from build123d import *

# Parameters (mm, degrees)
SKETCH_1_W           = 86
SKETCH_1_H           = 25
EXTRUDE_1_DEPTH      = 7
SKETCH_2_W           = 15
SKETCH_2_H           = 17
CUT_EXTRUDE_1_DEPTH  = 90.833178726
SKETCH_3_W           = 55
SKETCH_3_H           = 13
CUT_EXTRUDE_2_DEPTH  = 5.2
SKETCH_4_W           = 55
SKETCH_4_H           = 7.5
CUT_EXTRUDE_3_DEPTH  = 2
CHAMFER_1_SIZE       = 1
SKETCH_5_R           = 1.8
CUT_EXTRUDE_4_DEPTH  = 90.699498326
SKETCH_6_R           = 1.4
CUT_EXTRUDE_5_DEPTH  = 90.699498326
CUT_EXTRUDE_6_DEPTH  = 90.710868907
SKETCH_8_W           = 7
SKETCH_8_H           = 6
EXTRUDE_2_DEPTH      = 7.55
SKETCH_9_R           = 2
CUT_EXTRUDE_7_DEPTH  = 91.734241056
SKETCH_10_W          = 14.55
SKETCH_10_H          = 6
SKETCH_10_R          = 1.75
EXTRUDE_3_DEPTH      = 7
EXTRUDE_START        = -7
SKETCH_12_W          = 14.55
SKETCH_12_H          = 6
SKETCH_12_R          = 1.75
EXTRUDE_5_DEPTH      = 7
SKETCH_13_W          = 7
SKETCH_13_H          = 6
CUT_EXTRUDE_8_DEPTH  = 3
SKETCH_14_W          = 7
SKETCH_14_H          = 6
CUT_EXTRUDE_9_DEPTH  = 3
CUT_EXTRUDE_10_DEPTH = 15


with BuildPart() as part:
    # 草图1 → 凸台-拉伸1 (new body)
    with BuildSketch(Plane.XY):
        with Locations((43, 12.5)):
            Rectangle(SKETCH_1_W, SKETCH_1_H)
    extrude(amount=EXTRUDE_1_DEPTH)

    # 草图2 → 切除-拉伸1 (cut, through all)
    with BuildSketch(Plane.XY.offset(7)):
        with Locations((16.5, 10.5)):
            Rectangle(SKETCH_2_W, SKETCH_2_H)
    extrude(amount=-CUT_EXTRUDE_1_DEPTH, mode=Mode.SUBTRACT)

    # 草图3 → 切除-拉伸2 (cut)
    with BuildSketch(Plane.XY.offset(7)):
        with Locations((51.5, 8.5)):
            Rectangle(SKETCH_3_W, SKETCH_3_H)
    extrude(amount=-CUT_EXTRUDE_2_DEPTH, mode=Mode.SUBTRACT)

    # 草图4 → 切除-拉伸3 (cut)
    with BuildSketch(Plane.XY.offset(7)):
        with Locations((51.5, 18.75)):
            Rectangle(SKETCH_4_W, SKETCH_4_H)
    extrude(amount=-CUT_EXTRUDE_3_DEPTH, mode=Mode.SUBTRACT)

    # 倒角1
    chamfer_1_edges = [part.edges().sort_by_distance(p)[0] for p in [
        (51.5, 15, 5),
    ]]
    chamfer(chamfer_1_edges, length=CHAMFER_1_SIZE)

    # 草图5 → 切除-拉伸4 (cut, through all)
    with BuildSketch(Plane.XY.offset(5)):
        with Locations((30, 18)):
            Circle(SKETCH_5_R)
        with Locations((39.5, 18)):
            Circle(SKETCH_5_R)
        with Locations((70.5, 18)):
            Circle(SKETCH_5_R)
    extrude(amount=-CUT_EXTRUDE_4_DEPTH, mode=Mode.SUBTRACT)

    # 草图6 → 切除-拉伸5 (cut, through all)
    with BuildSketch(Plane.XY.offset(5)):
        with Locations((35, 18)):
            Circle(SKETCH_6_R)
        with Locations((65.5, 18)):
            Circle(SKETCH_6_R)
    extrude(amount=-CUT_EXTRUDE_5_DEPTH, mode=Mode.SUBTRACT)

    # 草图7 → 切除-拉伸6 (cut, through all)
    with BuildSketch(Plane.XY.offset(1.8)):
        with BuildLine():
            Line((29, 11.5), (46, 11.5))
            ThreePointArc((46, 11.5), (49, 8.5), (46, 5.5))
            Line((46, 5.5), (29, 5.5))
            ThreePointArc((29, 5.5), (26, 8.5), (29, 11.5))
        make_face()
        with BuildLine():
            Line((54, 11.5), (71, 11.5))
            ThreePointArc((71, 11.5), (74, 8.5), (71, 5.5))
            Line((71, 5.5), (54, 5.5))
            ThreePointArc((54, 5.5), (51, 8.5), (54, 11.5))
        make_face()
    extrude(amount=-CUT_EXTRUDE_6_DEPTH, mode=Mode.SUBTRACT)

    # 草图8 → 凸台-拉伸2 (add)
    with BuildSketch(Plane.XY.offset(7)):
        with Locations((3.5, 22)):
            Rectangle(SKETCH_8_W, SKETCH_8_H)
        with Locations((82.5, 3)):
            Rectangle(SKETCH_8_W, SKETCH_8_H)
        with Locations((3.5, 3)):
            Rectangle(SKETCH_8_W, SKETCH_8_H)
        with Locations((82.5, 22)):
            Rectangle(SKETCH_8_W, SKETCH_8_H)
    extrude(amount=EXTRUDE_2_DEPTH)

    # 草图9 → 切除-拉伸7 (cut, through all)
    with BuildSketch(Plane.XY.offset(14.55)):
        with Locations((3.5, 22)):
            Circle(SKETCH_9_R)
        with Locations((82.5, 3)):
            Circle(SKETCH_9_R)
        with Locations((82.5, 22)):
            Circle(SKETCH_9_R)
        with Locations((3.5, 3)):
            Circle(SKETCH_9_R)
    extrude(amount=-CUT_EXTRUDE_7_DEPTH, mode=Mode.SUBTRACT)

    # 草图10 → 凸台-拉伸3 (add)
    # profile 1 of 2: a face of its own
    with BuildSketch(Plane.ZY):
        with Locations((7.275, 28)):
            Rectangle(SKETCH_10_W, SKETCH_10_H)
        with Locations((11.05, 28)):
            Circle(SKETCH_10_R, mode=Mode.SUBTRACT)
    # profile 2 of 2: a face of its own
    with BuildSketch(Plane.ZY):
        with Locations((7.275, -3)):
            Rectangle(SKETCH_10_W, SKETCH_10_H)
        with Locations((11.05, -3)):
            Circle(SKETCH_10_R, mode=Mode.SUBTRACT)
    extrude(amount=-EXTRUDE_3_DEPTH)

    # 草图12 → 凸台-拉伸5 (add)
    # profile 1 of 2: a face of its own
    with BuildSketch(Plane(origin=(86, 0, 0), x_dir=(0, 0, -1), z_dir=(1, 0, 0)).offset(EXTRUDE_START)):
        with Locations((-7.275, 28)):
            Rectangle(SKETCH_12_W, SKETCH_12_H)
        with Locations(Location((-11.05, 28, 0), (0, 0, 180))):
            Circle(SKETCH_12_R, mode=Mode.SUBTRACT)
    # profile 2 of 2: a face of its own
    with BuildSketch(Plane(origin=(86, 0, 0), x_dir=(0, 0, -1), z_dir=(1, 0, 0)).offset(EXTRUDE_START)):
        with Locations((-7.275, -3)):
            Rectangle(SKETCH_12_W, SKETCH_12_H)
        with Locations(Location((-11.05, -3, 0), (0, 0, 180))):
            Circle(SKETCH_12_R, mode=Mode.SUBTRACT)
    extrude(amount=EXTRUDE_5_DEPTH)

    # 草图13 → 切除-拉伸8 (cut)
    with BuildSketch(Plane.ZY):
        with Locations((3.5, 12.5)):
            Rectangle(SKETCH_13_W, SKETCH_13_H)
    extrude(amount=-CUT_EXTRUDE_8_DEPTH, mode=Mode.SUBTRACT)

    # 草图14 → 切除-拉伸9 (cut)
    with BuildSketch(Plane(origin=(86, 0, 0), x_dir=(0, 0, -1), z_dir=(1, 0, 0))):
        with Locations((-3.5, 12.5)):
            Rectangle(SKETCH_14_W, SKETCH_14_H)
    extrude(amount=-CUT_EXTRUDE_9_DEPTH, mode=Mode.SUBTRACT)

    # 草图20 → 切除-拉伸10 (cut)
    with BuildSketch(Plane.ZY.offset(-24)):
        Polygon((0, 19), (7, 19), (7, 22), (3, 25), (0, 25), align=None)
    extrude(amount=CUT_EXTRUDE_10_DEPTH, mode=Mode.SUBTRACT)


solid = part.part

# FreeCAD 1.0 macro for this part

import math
import FreeCAD as App
import Part
import Sketcher

V = App.Vector
Q = App.Units.Quantity


def edges_at(feature, points):
    """Names of the edges that pass closest to the given points."""
    edges = feature.Shape.Edges
    near = lambda p: min(range(len(edges)), key=lambda i: edges[i].distToShape(Part.Vertex(*p))[0])
    return sorted({f"Edge{near(p) + 1}" for p in points})


def add_polygon(sketch, points):
    """Adds a closed chain of lines whose ends are joined by coincident constraints."""
    first, n = sketch.GeometryCount, len(points)
    for a, b in zip(points, points[1:] + points[:1]):
        sketch.addGeometry(Part.LineSegment(App.Vector(*a, 0), App.Vector(*b, 0)), False)
    for i in range(n):
        sketch.addConstraint(Sketcher.Constraint("Coincident", first + i, 2, first + (i + 1) % n, 1))

doc = App.newDocument("Part")
body = doc.addObject("PartDesign::Body", "Body")

sketch1 = body.newObject("Sketcher::SketchObject", "Sketch")
sketch1.AttachmentSupport = (doc.getObject("XY_Plane"), [""])
sketch1.MapMode = "FlatFace"
add_polygon(sketch1, [(0, 25), (0, 0), (86, 0), (86, 25)])
sketch1.addConstraint([
    Sketcher.Constraint("Vertical", 0),
    Sketcher.Constraint("Horizontal", 1),
    Sketcher.Constraint("Vertical", 2),
    Sketcher.Constraint("Horizontal", 3),
    Sketcher.Constraint("Coincident", 0, 2, -1, 1),
    Sketcher.Constraint("DistanceX", 1, 1, 1, 2, Q("86 mm")),
    Sketcher.Constraint("DistanceY", 0, 2, 0, 1, Q("25 mm")),
])
pad1 = body.newObject("PartDesign::Pad", "Pad")
pad1.Profile = sketch1
pad1.Length = 7

sketch2 = body.newObject("Sketcher::SketchObject", "Sketch001")
sketch2.AttachmentSupport = (doc.getObject("XY_Plane"), [""])
sketch2.MapMode = "FlatFace"
sketch2.AttachmentOffset = App.Placement(V(0, 0, 7), App.Rotation())
add_polygon(sketch2, [(9, 19), (9, 2), (24, 2), (24, 19)])
sketch2.addConstraint([
    Sketcher.Constraint("Vertical", 0),
    Sketcher.Constraint("Horizontal", 1),
    Sketcher.Constraint("Vertical", 2),
    Sketcher.Constraint("Horizontal", 3),
    Sketcher.Constraint("DistanceX", 1, 1, 1, 2, Q("15 mm")),
    Sketcher.Constraint("DistanceY", 0, 2, 0, 1, Q("17 mm")),
    Sketcher.Constraint("DistanceX", -1, 1, 0, 2, Q("9 mm")),
    Sketcher.Constraint("DistanceY", -1, 1, 0, 2, Q("2 mm")),
])
pocket1 = body.newObject("PartDesign::Pocket", "Pocket")
pocket1.Profile = sketch2
pocket1.Type = "ThroughAll"

sketch3 = body.newObject("Sketcher::SketchObject", "Sketch002")
sketch3.AttachmentSupport = (doc.getObject("XY_Plane"), [""])
sketch3.MapMode = "FlatFace"
sketch3.AttachmentOffset = App.Placement(V(0, 0, 7), App.Rotation())
add_polygon(sketch3, [(24, 15), (24, 2), (79, 2), (79, 15)])
sketch3.addConstraint([
    Sketcher.Constraint("Vertical", 0),
    Sketcher.Constraint("Horizontal", 1),
    Sketcher.Constraint("Vertical", 2),
    Sketcher.Constraint("Horizontal", 3),
    Sketcher.Constraint("DistanceX", 1, 1, 1, 2, Q("55 mm")),
    Sketcher.Constraint("DistanceY", 0, 2, 0, 1, Q("13 mm")),
    Sketcher.Constraint("DistanceX", -1, 1, 0, 2, Q("24 mm")),
    Sketcher.Constraint("DistanceY", -1, 1, 0, 2, Q("2 mm")),
])
pocket2 = body.newObject("PartDesign::Pocket", "Pocket001")
pocket2.Profile = sketch3
pocket2.Length = 5.2

sketch4 = body.newObject("Sketcher::SketchObject", "Sketch003")
sketch4.AttachmentSupport = (doc.getObject("XY_Plane"), [""])
sketch4.MapMode = "FlatFace"
sketch4.AttachmentOffset = App.Placement(V(0, 0, 7), App.Rotation())
add_polygon(sketch4, [(24, 22), (24, 15), (79, 15), (79, 22)])
sketch4.addConstraint([
    Sketcher.Constraint("Vertical", 0),
    Sketcher.Constraint("Horizontal", 1),
    Sketcher.Constraint("Vertical", 2),
    Sketcher.Constraint("Horizontal", 3),
    Sketcher.Constraint("DistanceX", 1, 1, 1, 2, Q("55 mm")),
    Sketcher.Constraint("DistanceY", 0, 2, 0, 1, Q("7.5 mm")),
    Sketcher.Constraint("DistanceX", -1, 1, 0, 2, Q("24 mm")),
    Sketcher.Constraint("DistanceY", -1, 1, 0, 2, Q("15 mm")),
])
pocket3 = body.newObject("PartDesign::Pocket", "Pocket002")
pocket3.Profile = sketch4
pocket3.Length = 2
doc.recompute()

chamfer = body.newObject("PartDesign::Chamfer", "Chamfer")
chamfer.Base = (pocket3, edges_at(pocket3, [(51.5, 15, 5)]))
chamfer.Size = 1

sketch5 = body.newObject("Sketcher::SketchObject", "Sketch004")
sketch5.AttachmentSupport = (doc.getObject("XY_Plane"), [""])
sketch5.MapMode = "FlatFace"
sketch5.AttachmentOffset = App.Placement(V(0, 0, 5), App.Rotation())
sketch5.addGeometry([
    Part.Circle(V(30, 18, 0), V(0, 0, 1), 1.8),
    Part.Circle(V(39.5, 18, 0), V(0, 0, 1), 1.8),
    Part.Circle(V(70.5, 18, 0), V(0, 0, 1), 1.8),
], False)
sketch5.addConstraint([
    Sketcher.Constraint("Equal", 0, 1),
    Sketcher.Constraint("Equal", 1, 2),
    Sketcher.Constraint("Horizontal", 0, 3, 1, 3),
    Sketcher.Constraint("Horizontal", 1, 3, 2, 3),
    Sketcher.Constraint("Diameter", 0, Q("3.6 mm")),
    Sketcher.Constraint("DistanceX", -1, 1, 0, 3, Q("30 mm")),
    Sketcher.Constraint("DistanceY", -1, 1, 0, 3, Q("18 mm")),
    Sketcher.Constraint("DistanceX", 1, 3, 2, 3, Q("31 mm")),
    Sketcher.Constraint("DistanceX", -1, 1, 1, 3, Q("39.5 mm")),
])
pocket4 = body.newObject("PartDesign::Pocket", "Pocket003")
pocket4.Profile = sketch5
pocket4.Type = "ThroughAll"

sketch6 = body.newObject("Sketcher::SketchObject", "Sketch005")
sketch6.AttachmentSupport = (doc.getObject("XY_Plane"), [""])
sketch6.MapMode = "FlatFace"
sketch6.AttachmentOffset = App.Placement(V(0, 0, 5), App.Rotation())
sketch6.addGeometry([
    Part.Circle(V(35, 18, 0), V(0, 0, 1), 1.4),
    Part.Circle(V(65.5, 18, 0), V(0, 0, 1), 1.4),
], False)
sketch6.addConstraint([
    Sketcher.Constraint("Equal", 0, 1),
    Sketcher.Constraint("Horizontal", 0, 3, 1, 3),
    Sketcher.Constraint("Diameter", 0, Q("2.8 mm")),
    Sketcher.Constraint("DistanceX", -1, 1, 0, 3, Q("35 mm")),
    Sketcher.Constraint("DistanceY", -1, 1, 0, 3, Q("18 mm")),
    Sketcher.Constraint("DistanceX", -1, 1, 1, 3, Q("65.5 mm")),
])
pocket5 = body.newObject("PartDesign::Pocket", "Pocket004")
pocket5.Profile = sketch6
pocket5.Type = "ThroughAll"

sketch7 = body.newObject("Sketcher::SketchObject", "Sketch006")
sketch7.AttachmentSupport = (doc.getObject("XY_Plane"), [""])
sketch7.MapMode = "FlatFace"
sketch7.AttachmentOffset = App.Placement(V(0, 0, 1.8), App.Rotation())
sketch7.addGeometry([
    Part.LineSegment(V(46, 11.5, 0), V(29, 11.5, 0)),
    Part.ArcOfCircle(Part.Circle(V(29, 8.5, 0), V(0, 0, 1), 3), math.radians(90), math.radians(270)),
    Part.LineSegment(V(29, 5.5, 0), V(46, 5.5, 0)),
    Part.ArcOfCircle(Part.Circle(V(46, 8.5, 0), V(0, 0, 1), 3), math.radians(-90), math.radians(90)),
    Part.LineSegment(V(71, 11.5, 0), V(54, 11.5, 0)),
    Part.ArcOfCircle(Part.Circle(V(54, 8.5, 0), V(0, 0, 1), 3), math.radians(90), math.radians(270)),
    Part.LineSegment(V(54, 5.5, 0), V(71, 5.5, 0)),
    Part.ArcOfCircle(Part.Circle(V(71, 8.5, 0), V(0, 0, 1), 3), math.radians(-90), math.radians(90)),
], False)
sketch7.addConstraint([
    Sketcher.Constraint("Tangent", 0, 2, 1, 1),
    Sketcher.Constraint("Tangent", 1, 2, 2, 1),
    Sketcher.Constraint("Tangent", 2, 2, 3, 1),
    Sketcher.Constraint("Tangent", 3, 2, 0, 1),
    Sketcher.Constraint("Tangent", 4, 2, 5, 1),
    Sketcher.Constraint("Tangent", 5, 2, 6, 1),
    Sketcher.Constraint("Tangent", 6, 2, 7, 1),
    Sketcher.Constraint("Tangent", 7, 2, 4, 1),
    Sketcher.Constraint("Horizontal", 0),
    Sketcher.Constraint("Horizontal", 2),
    Sketcher.Constraint("Horizontal", 4),
    Sketcher.Constraint("Horizontal", 6),
    Sketcher.Constraint("Equal", 3, 5),
    Sketcher.Constraint("Horizontal", 3, 3, 5, 3),
    Sketcher.Constraint("Equal", 2, 4),
    Sketcher.Constraint("Radius", 1, Q("3 mm")),
    Sketcher.Constraint("DistanceX", 0, 2, 0, 1, Q("17 mm")),
    Sketcher.Constraint("DistanceX", -1, 1, 1, 3, Q("29 mm")),
    Sketcher.Constraint("DistanceX", -1, 1, 5, 3, Q("54 mm")),
    Sketcher.Constraint("DistanceY", -1, 1, 1, 3, Q("8.5 mm")),
])
pocket6 = body.newObject("PartDesign::Pocket", "Pocket005")
pocket6.Profile = sketch7
pocket6.Type = "ThroughAll"

sketch8 = body.newObject("Sketcher::SketchObject", "Sketch007")
sketch8.AttachmentSupport = (doc.getObject("XY_Plane"), [""])
sketch8.MapMode = "FlatFace"
sketch8.AttachmentOffset = App.Placement(V(0, 0, 7), App.Rotation())
add_polygon(sketch8, [(0, 25), (0, 19), (7, 19), (7, 25)])
add_polygon(sketch8, [(79, 6), (79, 0), (86, 0), (86, 6)])
add_polygon(sketch8, [(0, 6), (0, 0), (7, 0), (7, 6)])
add_polygon(sketch8, [(79, 25), (79, 19), (86, 19), (86, 25)])
sketch8.addConstraint([
    Sketcher.Constraint("Vertical", 0),
    Sketcher.Constraint("Horizontal", 1),
    Sketcher.Constraint("Vertical", 2),
    Sketcher.Constraint("Horizontal", 3),
    Sketcher.Constraint("Vertical", 4),
    Sketcher.Constraint("Horizontal", 5),
    Sketcher.Constraint("Vertical", 6),
    Sketcher.Constraint("Horizontal", 7),
    Sketcher.Constraint("Vertical", 8),
    Sketcher.Constraint("Horizontal", 9),
    Sketcher.Constraint("Vertical", 10),
    Sketcher.Constraint("Horizontal", 11),
    Sketcher.Constraint("Vertical", 12),
    Sketcher.Constraint("Horizontal", 13),
    Sketcher.Constraint("Vertical", 14),
    Sketcher.Constraint("Horizontal", 15),
    Sketcher.Constraint("Coincident", 8, 2, -1, 1),
    Sketcher.Constraint("PointOnObject", 0, 2, -2),
    Sketcher.Constraint("PointOnObject", 4, 2, -1),
    Sketcher.Constraint("Horizontal", 7, 2, 10, 2),
    Sketcher.Constraint("Horizontal", 1, 2, 12, 2),
    Sketcher.Constraint("Horizontal", 3, 2, 14, 2),
    Sketcher.Constraint("Vertical", 2, 2, 9, 2),
    Sketcher.Constraint("Vertical", 7, 2, 12, 2),
    Sketcher.Constraint("Vertical", 6, 2, 13, 2),
    Sketcher.Constraint("Equal", 3, 5),
    Sketcher.Constraint("Equal", 2, 4),
    Sketcher.Constraint("DistanceX", 1, 1, 1, 2, Q("7 mm")),
    Sketcher.Constraint("DistanceY", 0, 2, 0, 1, Q("6 mm")),
    Sketcher.Constraint("DistanceY", -1, 1, 0, 2, Q("19 mm")),
    Sketcher.Constraint("DistanceX", -1, 1, 4, 2, Q("79 mm")),
])
pad2 = body.newObject("PartDesign::Pad", "Pad001")
pad2.Profile = sketch8
pad2.Length = 7.55

sketch9 = body.newObject("Sketcher::SketchObject", "Sketch008")
sketch9.AttachmentSupport = (doc.getObject("XY_Plane"), [""])
sketch9.MapMode = "FlatFace"
sketch9.AttachmentOffset = App.Placement(V(0, 0, 14.55), App.Rotation())
sketch9.addGeometry([
    Part.Circle(V(3.5, 22, 0), V(0, 0, 1), 2),
    Part.Circle(V(82.5, 3, 0), V(0, 0, 1), 2),
    Part.Circle(V(82.5, 22, 0), V(0, 0, 1), 2),
    Part.Circle(V(3.5, 3, 0), V(0, 0, 1), 2),
], False)
sketch9.addConstraint([
    Sketcher.Constraint("Equal", 0, 1),
    Sketcher.Constraint("Equal", 1, 2),
    Sketcher.Constraint("Equal", 2, 3),
    Sketcher.Constraint("Horizontal", 0, 3, 2, 3),
    Sketcher.Constraint("Horizontal", 1, 3, 3, 3),
    Sketcher.Constraint("Vertical", 1, 3, 2, 3),
    Sketcher.Constraint("Vertical", 0, 3, 3, 3),
    Sketcher.Constraint("Diameter", 0, Q("4 mm")),
    Sketcher.Constraint("DistanceY", -1, 1, 0, 3, Q("22 mm")),
    Sketcher.Constraint("DistanceY", -1, 1, 1, 3, Q("3 mm")),
    Sketcher.Constraint("DistanceX", 0, 3, 1, 3, Q("79 mm")),
    Sketcher.Constraint("DistanceX", -1, 1, 0, 3, Q("3.5 mm")),
])
pocket7 = body.newObject("PartDesign::Pocket", "Pocket006")
pocket7.Profile = sketch9
pocket7.Type = "ThroughAll"

sketch10 = body.newObject("Sketcher::SketchObject", "Sketch009")
sketch10.AttachmentSupport = (doc.getObject("YZ_Plane"), [""])
sketch10.MapMode = "FlatFace"
add_polygon(sketch10, [(31, 0), (25, 0), (25, 14.6), (31, 14.6)])
sketch10.addGeometry(Part.Circle(V(28, 11.1, 0), V(0, 0, 1), 1.8), False)
add_polygon(sketch10, [(0, 0), (-6, 0), (-6, 14.6), (0, 14.6)])
sketch10.addGeometry(Part.Circle(V(-3, 11.1, 0), V(0, 0, 1), 1.8), False)
sketch10.addConstraint([
    Sketcher.Constraint("Horizontal", 0),
    Sketcher.Constraint("Vertical", 1),
    Sketcher.Constraint("Horizontal", 2),
    Sketcher.Constraint("Vertical", 3),
    Sketcher.Constraint("Horizontal", 5),
    Sketcher.Constraint("Vertical", 6),
    Sketcher.Constraint("Horizontal", 7),
    Sketcher.Constraint("Vertical", 8),
    Sketcher.Constraint("Coincident", 8, 2, -1, 1),
    Sketcher.Constraint("Equal", 4, 9),
    Sketcher.Constraint("PointOnObject", 0, 2, -1),
    Sketcher.Constraint("Horizontal", 4, 3, 9, 3),
    Sketcher.Constraint("Horizontal", 2, 2, 6, 2),
    Sketcher.Constraint("Equal", 2, 5),
    Sketcher.Constraint("Diameter", 4, Q("3.5 mm")),
    Sketcher.Constraint("DistanceX", 0, 2, 0, 1, Q("6 mm")),
    Sketcher.Constraint("DistanceX", -1, 1, 4, 3, Q("28 mm")),
    Sketcher.Constraint("DistanceX", 9, 3, -1, 1, Q("3 mm")),
    Sketcher.Constraint("DistanceX", -1, 1, 0, 2, Q("25 mm")),
    Sketcher.Constraint("DistanceY", 1, 1, 1, 2, Q("14.55 mm")),
    Sketcher.Constraint("DistanceY", 4, 3, 1, 2, Q("3.5 mm")),
])
pad3 = body.newObject("PartDesign::Pad", "Pad002")
pad3.Profile = sketch10
pad3.Length = 7

sketch11 = body.newObject("Sketcher::SketchObject", "Sketch010")
sketch11.AttachmentSupport = (doc.getObject("YZ_Plane"), [""])
sketch11.MapMode = "FlatFace"
sketch11.AttachmentOffset = App.Placement(V(0, 0, 79), App.Rotation())
add_polygon(sketch11, [(31, 14.6), (25, 14.6), (25, 0), (31, 0)])
sketch11.addGeometry(Part.Circle(V(28, 11.1, 0), V(0, 0, 1), 1.8), False)
add_polygon(sketch11, [(0, 14.6), (-6, 14.6), (-6, 0), (0, 0)])
sketch11.addGeometry(Part.Circle(V(-3, 11.1, 0), V(0, 0, 1), 1.8), False)
sketch11.addConstraint([
    Sketcher.Constraint("Horizontal", 0),
    Sketcher.Constraint("Vertical", 1),
    Sketcher.Constraint("Horizontal", 2),
    Sketcher.Constraint("Vertical", 3),
    Sketcher.Constraint("Horizontal", 5),
    Sketcher.Constraint("Vertical", 6),
    Sketcher.Constraint("Horizontal", 7),
    Sketcher.Constraint("Vertical", 8),
    Sketcher.Constraint("Coincident", 7, 2, -1, 1),
    Sketcher.Constraint("Equal", 4, 9),
    Sketcher.Constraint("PointOnObject", 1, 2, -1),
    Sketcher.Constraint("Horizontal", 4, 3, 9, 3),
    Sketcher.Constraint("Horizontal", 3, 2, 5, 2),
    Sketcher.Constraint("Equal", 2, 5),
    Sketcher.Constraint("Diameter", 4, Q("3.5 mm")),
    Sketcher.Constraint("DistanceX", 0, 2, 0, 1, Q("6 mm")),
    Sketcher.Constraint("DistanceX", -1, 1, 4, 3, Q("28 mm")),
    Sketcher.Constraint("DistanceX", 9, 3, -1, 1, Q("3 mm")),
    Sketcher.Constraint("DistanceX", -1, 1, 0, 2, Q("25 mm")),
    Sketcher.Constraint("DistanceY", 1, 2, 1, 1, Q("14.55 mm")),
    Sketcher.Constraint("DistanceY", 4, 3, 0, 2, Q("3.5 mm")),
])
pad4 = body.newObject("PartDesign::Pad", "Pad003")
pad4.Profile = sketch11
pad4.Length = 7

sketch12 = body.newObject("Sketcher::SketchObject", "Sketch011")
sketch12.AttachmentSupport = (doc.getObject("YZ_Plane"), [""])
sketch12.MapMode = "FlatFace"
add_polygon(sketch12, [(16, 0), (10, 0), (10, 7), (16, 7)])
sketch12.addConstraint([
    Sketcher.Constraint("Horizontal", 0),
    Sketcher.Constraint("Vertical", 1),
    Sketcher.Constraint("Horizontal", 2),
    Sketcher.Constraint("Vertical", 3),
    Sketcher.Constraint("PointOnObject", 0, 2, -1),
    Sketcher.Constraint("DistanceX", 0, 2, 0, 1, Q("6 mm")),
    Sketcher.Constraint("DistanceY", 1, 1, 1, 2, Q("7 mm")),
    Sketcher.Constraint("DistanceX", -1, 1, 0, 2, Q("9.5 mm")),
])
pocket8 = body.newObject("PartDesign::Pocket", "Pocket007")
pocket8.Profile = sketch12
pocket8.Length = 3
pocket8.Reversed = True

sketch13 = body.newObject("Sketcher::SketchObject", "Sketch012")
sketch13.AttachmentSupport = (doc.getObject("YZ_Plane"), [""])
sketch13.MapMode = "FlatFace"
sketch13.AttachmentOffset = App.Placement(V(0, 0, 86), App.Rotation())
add_polygon(sketch13, [(16, 7), (10, 7), (10, 0), (16, 0)])
sketch13.addConstraint([
    Sketcher.Constraint("Horizontal", 0),
    Sketcher.Constraint("Vertical", 1),
    Sketcher.Constraint("Horizontal", 2),
    Sketcher.Constraint("Vertical", 3),
    Sketcher.Constraint("PointOnObject", 1, 2, -1),
    Sketcher.Constraint("DistanceX", 0, 2, 0, 1, Q("6 mm")),
    Sketcher.Constraint("DistanceY", 1, 2, 1, 1, Q("7 mm")),
    Sketcher.Constraint("DistanceX", -1, 1, 0, 2, Q("9.5 mm")),
])
pocket9 = body.newObject("PartDesign::Pocket", "Pocket008")
pocket9.Profile = sketch13
pocket9.Length = 3

sketch14 = body.newObject("Sketcher::SketchObject", "Sketch013")
sketch14.AttachmentSupport = (doc.getObject("YZ_Plane"), [""])
sketch14.MapMode = "FlatFace"
sketch14.AttachmentOffset = App.Placement(V(0, 0, 24), App.Rotation())
add_polygon(sketch14, [(19, 0), (19, 7), (22, 7), (25, 3), (25, 0)])
sketch14.addConstraint([
    Sketcher.Constraint("Vertical", 0),
    Sketcher.Constraint("Horizontal", 1),
    Sketcher.Constraint("Vertical", 3),
    Sketcher.Constraint("Horizontal", 4),
    Sketcher.Constraint("PointOnObject", 3, 2, -1),
    Sketcher.Constraint("Equal", 1, 3),
    Sketcher.Constraint("DistanceX", 1, 1, 1, 2, Q("3 mm")),
    Sketcher.Constraint("DistanceX", 4, 2, 4, 1, Q("6 mm")),
    Sketcher.Constraint("DistanceY", 0, 1, 0, 2, Q("7 mm")),
    Sketcher.Constraint("DistanceX", -1, 1, 0, 2, Q("19 mm")),
])
pocket10 = body.newObject("PartDesign::Pocket", "Pocket009")
pocket10.Profile = sketch14
pocket10.Length = 15

doc.recompute()
